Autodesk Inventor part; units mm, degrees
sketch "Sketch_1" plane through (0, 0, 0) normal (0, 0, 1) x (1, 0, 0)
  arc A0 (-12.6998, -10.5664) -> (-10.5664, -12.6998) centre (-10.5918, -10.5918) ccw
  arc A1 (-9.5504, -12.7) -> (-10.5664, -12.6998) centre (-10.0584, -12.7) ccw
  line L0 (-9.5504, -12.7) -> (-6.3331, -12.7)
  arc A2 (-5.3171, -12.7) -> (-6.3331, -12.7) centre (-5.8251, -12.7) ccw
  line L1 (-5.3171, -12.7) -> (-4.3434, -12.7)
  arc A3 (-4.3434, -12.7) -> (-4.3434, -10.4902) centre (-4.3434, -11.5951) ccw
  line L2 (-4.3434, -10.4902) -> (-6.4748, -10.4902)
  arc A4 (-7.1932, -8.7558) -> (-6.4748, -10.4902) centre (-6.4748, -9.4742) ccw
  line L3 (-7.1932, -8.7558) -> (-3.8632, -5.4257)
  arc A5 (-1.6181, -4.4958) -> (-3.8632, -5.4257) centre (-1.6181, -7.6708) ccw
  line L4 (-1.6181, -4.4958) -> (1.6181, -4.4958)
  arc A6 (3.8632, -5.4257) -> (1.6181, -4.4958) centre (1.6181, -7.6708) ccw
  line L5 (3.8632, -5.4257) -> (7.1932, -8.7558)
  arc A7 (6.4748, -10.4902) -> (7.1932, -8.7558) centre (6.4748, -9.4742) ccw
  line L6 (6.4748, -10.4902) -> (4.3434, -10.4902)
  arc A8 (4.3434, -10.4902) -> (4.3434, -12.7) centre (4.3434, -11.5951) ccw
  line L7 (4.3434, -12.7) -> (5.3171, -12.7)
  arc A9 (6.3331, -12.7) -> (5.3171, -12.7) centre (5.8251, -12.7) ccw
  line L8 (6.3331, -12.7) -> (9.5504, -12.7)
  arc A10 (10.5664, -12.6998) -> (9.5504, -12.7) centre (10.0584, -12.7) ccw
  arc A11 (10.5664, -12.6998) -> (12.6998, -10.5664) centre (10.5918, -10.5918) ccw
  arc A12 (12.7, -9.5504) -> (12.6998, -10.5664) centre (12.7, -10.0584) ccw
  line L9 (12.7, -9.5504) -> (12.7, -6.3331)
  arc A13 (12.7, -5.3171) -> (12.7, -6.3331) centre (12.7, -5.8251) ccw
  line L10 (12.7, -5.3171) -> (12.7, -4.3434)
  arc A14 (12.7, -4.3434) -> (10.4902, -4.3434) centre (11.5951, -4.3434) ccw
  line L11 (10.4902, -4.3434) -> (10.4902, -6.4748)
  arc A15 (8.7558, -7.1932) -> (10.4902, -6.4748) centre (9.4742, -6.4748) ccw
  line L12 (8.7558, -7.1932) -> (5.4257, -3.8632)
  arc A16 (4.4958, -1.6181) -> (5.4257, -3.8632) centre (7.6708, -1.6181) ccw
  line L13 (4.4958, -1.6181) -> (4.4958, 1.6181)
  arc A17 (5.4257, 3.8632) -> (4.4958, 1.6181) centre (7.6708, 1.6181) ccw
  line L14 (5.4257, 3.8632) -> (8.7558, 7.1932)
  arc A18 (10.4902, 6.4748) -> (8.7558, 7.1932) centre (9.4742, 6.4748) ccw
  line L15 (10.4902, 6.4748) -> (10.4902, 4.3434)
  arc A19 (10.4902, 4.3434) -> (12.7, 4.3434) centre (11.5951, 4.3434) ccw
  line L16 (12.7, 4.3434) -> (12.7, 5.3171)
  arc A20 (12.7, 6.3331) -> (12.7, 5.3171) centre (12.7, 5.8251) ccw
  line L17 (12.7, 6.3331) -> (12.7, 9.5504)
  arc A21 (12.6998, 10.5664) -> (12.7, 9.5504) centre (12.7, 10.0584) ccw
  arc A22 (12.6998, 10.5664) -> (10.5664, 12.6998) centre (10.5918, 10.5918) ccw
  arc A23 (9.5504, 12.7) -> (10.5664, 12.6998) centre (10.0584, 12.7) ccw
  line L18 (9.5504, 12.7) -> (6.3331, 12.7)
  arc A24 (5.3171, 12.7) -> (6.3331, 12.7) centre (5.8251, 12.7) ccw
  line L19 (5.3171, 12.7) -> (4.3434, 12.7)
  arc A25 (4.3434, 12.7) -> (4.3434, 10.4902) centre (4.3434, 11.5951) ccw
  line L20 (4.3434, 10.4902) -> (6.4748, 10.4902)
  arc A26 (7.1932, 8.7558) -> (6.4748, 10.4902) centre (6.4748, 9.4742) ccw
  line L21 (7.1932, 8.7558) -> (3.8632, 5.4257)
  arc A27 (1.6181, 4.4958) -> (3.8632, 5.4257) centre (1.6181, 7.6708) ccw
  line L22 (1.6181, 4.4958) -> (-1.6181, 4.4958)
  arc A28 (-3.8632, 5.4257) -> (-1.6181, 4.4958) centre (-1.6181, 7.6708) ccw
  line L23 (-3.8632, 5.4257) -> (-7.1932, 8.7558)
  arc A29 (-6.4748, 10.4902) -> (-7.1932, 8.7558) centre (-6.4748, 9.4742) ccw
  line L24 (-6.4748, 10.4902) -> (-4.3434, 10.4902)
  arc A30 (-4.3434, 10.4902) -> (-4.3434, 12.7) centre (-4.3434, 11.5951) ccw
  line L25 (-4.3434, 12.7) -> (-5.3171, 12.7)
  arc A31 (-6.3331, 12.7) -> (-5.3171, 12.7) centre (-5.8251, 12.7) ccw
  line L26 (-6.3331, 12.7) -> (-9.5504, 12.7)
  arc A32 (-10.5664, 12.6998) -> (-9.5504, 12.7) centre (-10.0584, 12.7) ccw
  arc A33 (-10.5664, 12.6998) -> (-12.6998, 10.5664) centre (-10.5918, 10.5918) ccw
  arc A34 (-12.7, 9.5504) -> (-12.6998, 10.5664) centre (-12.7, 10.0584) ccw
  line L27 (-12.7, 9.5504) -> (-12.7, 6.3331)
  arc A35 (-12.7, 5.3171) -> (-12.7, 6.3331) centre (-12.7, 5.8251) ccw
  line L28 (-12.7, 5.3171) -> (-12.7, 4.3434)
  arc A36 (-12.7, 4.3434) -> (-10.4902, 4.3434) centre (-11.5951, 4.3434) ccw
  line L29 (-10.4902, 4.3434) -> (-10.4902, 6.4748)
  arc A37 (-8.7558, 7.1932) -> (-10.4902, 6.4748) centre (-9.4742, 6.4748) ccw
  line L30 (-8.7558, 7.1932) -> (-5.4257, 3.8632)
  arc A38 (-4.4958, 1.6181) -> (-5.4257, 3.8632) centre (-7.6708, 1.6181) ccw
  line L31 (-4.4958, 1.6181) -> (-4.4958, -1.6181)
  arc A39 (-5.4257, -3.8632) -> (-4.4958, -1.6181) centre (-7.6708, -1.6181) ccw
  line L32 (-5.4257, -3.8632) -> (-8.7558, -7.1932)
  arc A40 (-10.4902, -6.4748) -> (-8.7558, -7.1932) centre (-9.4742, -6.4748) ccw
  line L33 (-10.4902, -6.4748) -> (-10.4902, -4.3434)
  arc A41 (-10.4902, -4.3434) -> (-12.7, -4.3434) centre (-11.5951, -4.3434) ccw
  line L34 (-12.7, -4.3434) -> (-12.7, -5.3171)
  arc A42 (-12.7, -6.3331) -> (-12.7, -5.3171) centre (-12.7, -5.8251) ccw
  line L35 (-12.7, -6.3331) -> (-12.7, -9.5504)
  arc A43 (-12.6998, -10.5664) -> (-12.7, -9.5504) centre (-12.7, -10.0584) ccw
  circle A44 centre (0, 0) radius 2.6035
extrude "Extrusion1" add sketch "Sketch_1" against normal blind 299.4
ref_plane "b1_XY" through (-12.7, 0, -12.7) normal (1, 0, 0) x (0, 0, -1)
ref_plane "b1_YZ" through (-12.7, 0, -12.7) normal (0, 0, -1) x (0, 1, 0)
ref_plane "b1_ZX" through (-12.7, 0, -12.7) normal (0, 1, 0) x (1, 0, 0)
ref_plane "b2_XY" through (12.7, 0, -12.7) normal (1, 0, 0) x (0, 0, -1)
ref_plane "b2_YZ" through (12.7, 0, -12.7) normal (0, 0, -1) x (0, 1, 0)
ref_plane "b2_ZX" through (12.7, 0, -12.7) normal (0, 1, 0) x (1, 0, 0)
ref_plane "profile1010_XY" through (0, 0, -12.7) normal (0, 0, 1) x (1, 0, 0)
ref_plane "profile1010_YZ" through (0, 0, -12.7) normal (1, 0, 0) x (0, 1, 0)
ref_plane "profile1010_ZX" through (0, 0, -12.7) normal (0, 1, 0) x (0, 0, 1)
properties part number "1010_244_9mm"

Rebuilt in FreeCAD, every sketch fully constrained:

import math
import FreeCAD as App
import Part
import Sketcher
Q = App.Units.Quantity

doc = App.newDocument("Part")
body = doc.addObject("PartDesign::Body", "Body")

# Sketch on XY plane
sketch1 = body.newObject("Sketcher::SketchObject", "Sketch")
sketch1.AttachmentSupport = (doc.getObject("XY_Plane"), [""])
sketch1.MapMode = "FlatFace"
sketch1.addGeometry(Part.ArcOfCircle(Part.Circle(App.Vector(-12.7, -10.1, 0), App.Vector(0, 0, 1), 0.5), math.radians(-90), math.radians(90)), False)
sketch1.addGeometry(Part.ArcOfCircle(Part.Circle(App.Vector(-10.6, -10.6, 0), App.Vector(0, 0, 1), 2.1), math.radians(179), math.radians(271)), False)
sketch1.addGeometry(Part.ArcOfCircle(Part.Circle(App.Vector(-10.1, -12.7, 0), App.Vector(0, 0, 1), 0.5), math.radians(0), math.radians(180)), False)
sketch1.addGeometry(Part.LineSegment(App.Vector(-9.6, -12.7, 0), App.Vector(-6.3, -12.7, 0)), False)
sketch1.addGeometry(Part.ArcOfCircle(Part.Circle(App.Vector(-5.8, -12.7, 0), App.Vector(0, 0, 1), 0.5), math.radians(0), math.radians(180)), False)
sketch1.addGeometry(Part.LineSegment(App.Vector(-5.3, -12.7, 0), App.Vector(-4.3, -12.7, 0)), False)
sketch1.addGeometry(Part.ArcOfCircle(Part.Circle(App.Vector(-4.3, -11.6, 0), App.Vector(0, 0, 1), 1.1), math.radians(-90), math.radians(90)), False)
sketch1.addGeometry(Part.LineSegment(App.Vector(-4.3, -10.5, 0), App.Vector(-6.5, -10.5, 0)), False)
sketch1.addGeometry(Part.ArcOfCircle(Part.Circle(App.Vector(-6.5, -9.5, 0), App.Vector(0, 0, 1), 1), math.radians(135), math.radians(270)), False)
sketch1.addGeometry(Part.LineSegment(App.Vector(-7.2, -8.8, 0), App.Vector(-3.9, -5.4, 0)), False)
sketch1.addGeometry(Part.ArcOfCircle(Part.Circle(App.Vector(-1.6, -7.7, 0), App.Vector(0, 0, 1), 3.2), math.radians(90), math.radians(135)), False)
sketch1.addGeometry(Part.LineSegment(App.Vector(-1.6, -4.5, 0), App.Vector(1.6, -4.5, 0)), False)
sketch1.addGeometry(Part.ArcOfCircle(Part.Circle(App.Vector(1.6, -7.7, 0), App.Vector(0, 0, 1), 3.2), math.radians(45), math.radians(90)), False)
sketch1.addGeometry(Part.LineSegment(App.Vector(3.9, -5.4, 0), App.Vector(7.2, -8.8, 0)), False)
sketch1.addGeometry(Part.ArcOfCircle(Part.Circle(App.Vector(6.5, -9.5, 0), App.Vector(0, 0, 1), 1), math.radians(-90), math.radians(45)), False)
sketch1.addGeometry(Part.LineSegment(App.Vector(6.5, -10.5, 0), App.Vector(4.3, -10.5, 0)), False)
sketch1.addGeometry(Part.ArcOfCircle(Part.Circle(App.Vector(4.3, -11.6, 0), App.Vector(0, 0, 1), 1.1), math.radians(90), math.radians(270)), False)
sketch1.addGeometry(Part.LineSegment(App.Vector(4.3, -12.7, 0), App.Vector(5.3, -12.7, 0)), False)
sketch1.addGeometry(Part.ArcOfCircle(Part.Circle(App.Vector(5.8, -12.7, 0), App.Vector(0, 0, 1), 0.5), math.radians(0), math.radians(180)), False)
sketch1.addGeometry(Part.LineSegment(App.Vector(6.3, -12.7, 0), App.Vector(9.6, -12.7, 0)), False)
sketch1.addGeometry(Part.ArcOfCircle(Part.Circle(App.Vector(10.1, -12.7, 0), App.Vector(0, 0, 1), 0.5), math.radians(0), math.radians(180)), False)
sketch1.addGeometry(Part.ArcOfCircle(Part.Circle(App.Vector(10.6, -10.6, 0), App.Vector(0, 0, 1), 2.1), math.radians(-91), math.radians(1)), False)
sketch1.addGeometry(Part.ArcOfCircle(Part.Circle(App.Vector(12.7, -10.1, 0), App.Vector(0, 0, 1), 0.5), math.radians(90), math.radians(270)), False)
sketch1.addGeometry(Part.LineSegment(App.Vector(12.7, -9.6, 0), App.Vector(12.7, -6.3, 0)), False)
sketch1.addGeometry(Part.ArcOfCircle(Part.Circle(App.Vector(12.7, -5.8, 0), App.Vector(0, 0, 1), 0.5), math.radians(90), math.radians(270)), False)
sketch1.addGeometry(Part.LineSegment(App.Vector(12.7, -5.3, 0), App.Vector(12.7, -4.3, 0)), False)
sketch1.addGeometry(Part.ArcOfCircle(Part.Circle(App.Vector(11.6, -4.3, 0), App.Vector(0, 0, 1), 1.1), math.radians(0), math.radians(180)), False)
sketch1.addGeometry(Part.LineSegment(App.Vector(10.5, -4.3, 0), App.Vector(10.5, -6.5, 0)), False)
sketch1.addGeometry(Part.ArcOfCircle(Part.Circle(App.Vector(9.5, -6.5, 0), App.Vector(0, 0, 1), 1), math.radians(-135), math.radians(0)), False)
sketch1.addGeometry(Part.LineSegment(App.Vector(8.8, -7.2, 0), App.Vector(5.4, -3.9, 0)), False)
sketch1.addGeometry(Part.ArcOfCircle(Part.Circle(App.Vector(7.7, -1.6, 0), App.Vector(0, 0, 1), 3.2), math.radians(180), math.radians(225)), False)
sketch1.addGeometry(Part.LineSegment(App.Vector(4.5, -1.6, 0), App.Vector(4.5, 1.6, 0)), False)
sketch1.addGeometry(Part.ArcOfCircle(Part.Circle(App.Vector(7.7, 1.6, 0), App.Vector(0, 0, 1), 3.2), math.radians(135), math.radians(180)), False)
sketch1.addGeometry(Part.LineSegment(App.Vector(5.4, 3.9, 0), App.Vector(8.8, 7.2, 0)), False)
sketch1.addGeometry(Part.ArcOfCircle(Part.Circle(App.Vector(9.5, 6.5, 0), App.Vector(0, 0, 1), 1), math.radians(0), math.radians(135)), False)
sketch1.addGeometry(Part.LineSegment(App.Vector(10.5, 6.5, 0), App.Vector(10.5, 4.3, 0)), False)
sketch1.addGeometry(Part.ArcOfCircle(Part.Circle(App.Vector(11.6, 4.3, 0), App.Vector(0, 0, 1), 1.1), math.radians(180), math.radians(360)), False)
sketch1.addGeometry(Part.LineSegment(App.Vector(12.7, 4.3, 0), App.Vector(12.7, 5.3, 0)), False)
sketch1.addGeometry(Part.ArcOfCircle(Part.Circle(App.Vector(12.7, 5.8, 0), App.Vector(0, 0, 1), 0.5), math.radians(90), math.radians(270)), False)
sketch1.addGeometry(Part.LineSegment(App.Vector(12.7, 6.3, 0), App.Vector(12.7, 9.6, 0)), False)
sketch1.addGeometry(Part.ArcOfCircle(Part.Circle(App.Vector(12.7, 10.1, 0), App.Vector(0, 0, 1), 0.5), math.radians(90), math.radians(270)), False)
sketch1.addGeometry(Part.ArcOfCircle(Part.Circle(App.Vector(10.6, 10.6, 0), App.Vector(0, 0, 1), 2.1), math.radians(-1), math.radians(91)), False)
sketch1.addGeometry(Part.ArcOfCircle(Part.Circle(App.Vector(10.1, 12.7, 0), App.Vector(0, 0, 1), 0.5), math.radians(180), math.radians(360)), False)
sketch1.addGeometry(Part.LineSegment(App.Vector(9.6, 12.7, 0), App.Vector(6.3, 12.7, 0)), False)
sketch1.addGeometry(Part.ArcOfCircle(Part.Circle(App.Vector(5.8, 12.7, 0), App.Vector(0, 0, 1), 0.5), math.radians(180), math.radians(360)), False)
sketch1.addGeometry(Part.LineSegment(App.Vector(5.3, 12.7, 0), App.Vector(4.3, 12.7, 0)), False)
sketch1.addGeometry(Part.ArcOfCircle(Part.Circle(App.Vector(4.3, 11.6, 0), App.Vector(0, 0, 1), 1.1), math.radians(90), math.radians(270)), False)
sketch1.addGeometry(Part.LineSegment(App.Vector(4.3, 10.5, 0), App.Vector(6.5, 10.5, 0)), False)
sketch1.addGeometry(Part.ArcOfCircle(Part.Circle(App.Vector(6.5, 9.5, 0), App.Vector(0, 0, 1), 1), math.radians(-45), math.radians(90)), False)
sketch1.addGeometry(Part.LineSegment(App.Vector(7.2, 8.8, 0), App.Vector(3.9, 5.4, 0)), False)
sketch1.addGeometry(Part.ArcOfCircle(Part.Circle(App.Vector(1.6, 7.7, 0), App.Vector(0, 0, 1), 3.2), math.radians(-90), math.radians(-45)), False)
sketch1.addGeometry(Part.LineSegment(App.Vector(1.6, 4.5, 0), App.Vector(-1.6, 4.5, 0)), False)
sketch1.addGeometry(Part.ArcOfCircle(Part.Circle(App.Vector(-1.6, 7.7, 0), App.Vector(0, 0, 1), 3.2), math.radians(-135), math.radians(-90)), False)
sketch1.addGeometry(Part.LineSegment(App.Vector(-3.9, 5.4, 0), App.Vector(-7.2, 8.8, 0)), False)
sketch1.addGeometry(Part.ArcOfCircle(Part.Circle(App.Vector(-6.5, 9.5, 0), App.Vector(0, 0, 1), 1), math.radians(90), math.radians(225)), False)
sketch1.addGeometry(Part.LineSegment(App.Vector(-6.5, 10.5, 0), App.Vector(-4.3, 10.5, 0)), False)
sketch1.addGeometry(Part.ArcOfCircle(Part.Circle(App.Vector(-4.3, 11.6, 0), App.Vector(0, 0, 1), 1.1), math.radians(-90), math.radians(90)), False)
sketch1.addGeometry(Part.LineSegment(App.Vector(-4.3, 12.7, 0), App.Vector(-5.3, 12.7, 0)), False)
sketch1.addGeometry(Part.ArcOfCircle(Part.Circle(App.Vector(-5.8, 12.7, 0), App.Vector(0, 0, 1), 0.5), math.radians(180), math.radians(360)), False)
sketch1.addGeometry(Part.LineSegment(App.Vector(-6.3, 12.7, 0), App.Vector(-9.6, 12.7, 0)), False)
sketch1.addGeometry(Part.ArcOfCircle(Part.Circle(App.Vector(-10.1, 12.7, 0), App.Vector(0, 0, 1), 0.5), math.radians(-180), math.radians(0)), False)
sketch1.addGeometry(Part.ArcOfCircle(Part.Circle(App.Vector(-10.6, 10.6, 0), App.Vector(0, 0, 1), 2.1), math.radians(89), math.radians(181)), False)
sketch1.addGeometry(Part.ArcOfCircle(Part.Circle(App.Vector(-12.7, 10.1, 0), App.Vector(0, 0, 1), 0.5), math.radians(-90), math.radians(90)), False)
sketch1.addGeometry(Part.LineSegment(App.Vector(-12.7, 9.6, 0), App.Vector(-12.7, 6.3, 0)), False)
sketch1.addGeometry(Part.ArcOfCircle(Part.Circle(App.Vector(-12.7, 5.8, 0), App.Vector(0, 0, 1), 0.5), math.radians(-90), math.radians(90)), False)
sketch1.addGeometry(Part.LineSegment(App.Vector(-12.7, 5.3, 0), App.Vector(-12.7, 4.3, 0)), False)
sketch1.addGeometry(Part.ArcOfCircle(Part.Circle(App.Vector(-11.6, 4.3, 0), App.Vector(0, 0, 1), 1.1), math.radians(180), math.radians(360)), False)
sketch1.addGeometry(Part.LineSegment(App.Vector(-10.5, 4.3, 0), App.Vector(-10.5, 6.5, 0)), False)
sketch1.addGeometry(Part.ArcOfCircle(Part.Circle(App.Vector(-9.5, 6.5, 0), App.Vector(0, 0, 1), 1), math.radians(45), math.radians(180)), False)
sketch1.addGeometry(Part.LineSegment(App.Vector(-8.8, 7.2, 0), App.Vector(-5.4, 3.9, 0)), False)
sketch1.addGeometry(Part.ArcOfCircle(Part.Circle(App.Vector(-7.7, 1.6, 0), App.Vector(0, 0, 1), 3.2), math.radians(0), math.radians(45)), False)
sketch1.addGeometry(Part.LineSegment(App.Vector(-4.5, 1.6, 0), App.Vector(-4.5, -1.6, 0)), False)
sketch1.addGeometry(Part.ArcOfCircle(Part.Circle(App.Vector(-7.7, -1.6, 0), App.Vector(0, 0, 1), 3.2), math.radians(-45), math.radians(0)), False)
sketch1.addGeometry(Part.LineSegment(App.Vector(-5.4, -3.9, 0), App.Vector(-8.8, -7.2, 0)), False)
sketch1.addGeometry(Part.ArcOfCircle(Part.Circle(App.Vector(-9.5, -6.5, 0), App.Vector(0, 0, 1), 1), math.radians(180), math.radians(315)), False)
sketch1.addGeometry(Part.LineSegment(App.Vector(-10.5, -6.5, 0), App.Vector(-10.5, -4.3, 0)), False)
sketch1.addGeometry(Part.ArcOfCircle(Part.Circle(App.Vector(-11.6, -4.3, 0), App.Vector(0, 0, 1), 1.1), math.radians(0), math.radians(180)), False)
sketch1.addGeometry(Part.LineSegment(App.Vector(-12.7, -4.3, 0), App.Vector(-12.7, -5.3, 0)), False)
sketch1.addGeometry(Part.ArcOfCircle(Part.Circle(App.Vector(-12.7, -5.8, 0), App.Vector(0, 0, 1), 0.5), math.radians(-90), math.radians(90)), False)
sketch1.addGeometry(Part.LineSegment(App.Vector(-12.7, -6.3, 0), App.Vector(-12.7, -9.6, 0)), False)
sketch1.addGeometry(Part.Circle(App.Vector(0, 0, 0), App.Vector(0, 0, 1), 2.6), False)
sketch1.addConstraint(Sketcher.Constraint("Coincident", 0, 1, 1, 1))
sketch1.addConstraint(Sketcher.Constraint("Coincident", 1, 2, 2, 2))
sketch1.addConstraint(Sketcher.Constraint("Coincident", 2, 1, 3, 1))
sketch1.addConstraint(Sketcher.Constraint("Coincident", 3, 2, 4, 2))
sketch1.addConstraint(Sketcher.Constraint("Coincident", 4, 1, 5, 1))
sketch1.addConstraint(Sketcher.Constraint("Tangent", 5, 2, 6, 1))
sketch1.addConstraint(Sketcher.Constraint("Tangent", 6, 2, 7, 1))
sketch1.addConstraint(Sketcher.Constraint("Tangent", 7, 2, 8, 2))
sketch1.addConstraint(Sketcher.Constraint("Tangent", 8, 1, 9, 1))
sketch1.addConstraint(Sketcher.Constraint("Tangent", 9, 2, 10, 2))
sketch1.addConstraint(Sketcher.Constraint("Tangent", 10, 1, 11, 1))
sketch1.addConstraint(Sketcher.Constraint("Tangent", 11, 2, 12, 2))
sketch1.addConstraint(Sketcher.Constraint("Tangent", 12, 1, 13, 1))
sketch1.addConstraint(Sketcher.Constraint("Tangent", 13, 2, 14, 2))
sketch1.addConstraint(Sketcher.Constraint("Tangent", 14, 1, 15, 1))
sketch1.addConstraint(Sketcher.Constraint("Tangent", 15, 2, 16, 1))
sketch1.addConstraint(Sketcher.Constraint("Tangent", 16, 2, 17, 1))
sketch1.addConstraint(Sketcher.Constraint("Coincident", 17, 2, 18, 2))
sketch1.addConstraint(Sketcher.Constraint("Coincident", 18, 1, 19, 1))
sketch1.addConstraint(Sketcher.Constraint("Coincident", 19, 2, 20, 2))
sketch1.addConstraint(Sketcher.Constraint("Coincident", 20, 1, 21, 1))
sketch1.addConstraint(Sketcher.Constraint("Coincident", 21, 2, 22, 2))
sketch1.addConstraint(Sketcher.Constraint("Coincident", 22, 1, 23, 1))
sketch1.addConstraint(Sketcher.Constraint("Coincident", 23, 2, 24, 2))
sketch1.addConstraint(Sketcher.Constraint("Coincident", 24, 1, 25, 1))
sketch1.addConstraint(Sketcher.Constraint("Tangent", 25, 2, 26, 1))
sketch1.addConstraint(Sketcher.Constraint("Tangent", 26, 2, 27, 1))
sketch1.addConstraint(Sketcher.Constraint("Tangent", 27, 2, 28, 2))
sketch1.addConstraint(Sketcher.Constraint("Tangent", 28, 1, 29, 1))
sketch1.addConstraint(Sketcher.Constraint("Tangent", 29, 2, 30, 2))
sketch1.addConstraint(Sketcher.Constraint("Tangent", 30, 1, 31, 1))
sketch1.addConstraint(Sketcher.Constraint("Tangent", 31, 2, 32, 2))
sketch1.addConstraint(Sketcher.Constraint("Tangent", 32, 1, 33, 1))
sketch1.addConstraint(Sketcher.Constraint("Tangent", 33, 2, 34, 2))
sketch1.addConstraint(Sketcher.Constraint("Tangent", 34, 1, 35, 1))
sketch1.addConstraint(Sketcher.Constraint("Tangent", 35, 2, 36, 1))
sketch1.addConstraint(Sketcher.Constraint("Tangent", 36, 2, 37, 1))
sketch1.addConstraint(Sketcher.Constraint("Coincident", 37, 2, 38, 2))
sketch1.addConstraint(Sketcher.Constraint("Coincident", 38, 1, 39, 1))
sketch1.addConstraint(Sketcher.Constraint("Coincident", 39, 2, 40, 2))
sketch1.addConstraint(Sketcher.Constraint("Coincident", 40, 1, 41, 1))
sketch1.addConstraint(Sketcher.Constraint("Coincident", 41, 2, 42, 2))
sketch1.addConstraint(Sketcher.Constraint("Coincident", 42, 1, 43, 1))
sketch1.addConstraint(Sketcher.Constraint("Coincident", 43, 2, 44, 2))
sketch1.addConstraint(Sketcher.Constraint("Coincident", 44, 1, 45, 1))
sketch1.addConstraint(Sketcher.Constraint("Tangent", 45, 2, 46, 1))
sketch1.addConstraint(Sketcher.Constraint("Tangent", 46, 2, 47, 1))
sketch1.addConstraint(Sketcher.Constraint("Tangent", 47, 2, 48, 2))
sketch1.addConstraint(Sketcher.Constraint("Tangent", 48, 1, 49, 1))
sketch1.addConstraint(Sketcher.Constraint("Tangent", 49, 2, 50, 2))
sketch1.addConstraint(Sketcher.Constraint("Tangent", 50, 1, 51, 1))
sketch1.addConstraint(Sketcher.Constraint("Tangent", 51, 2, 52, 2))
sketch1.addConstraint(Sketcher.Constraint("Tangent", 52, 1, 53, 1))
sketch1.addConstraint(Sketcher.Constraint("Tangent", 53, 2, 54, 2))
sketch1.addConstraint(Sketcher.Constraint("Tangent", 54, 1, 55, 1))
sketch1.addConstraint(Sketcher.Constraint("Tangent", 55, 2, 56, 1))
sketch1.addConstraint(Sketcher.Constraint("Tangent", 56, 2, 57, 1))
sketch1.addConstraint(Sketcher.Constraint("Coincident", 57, 2, 58, 2))
sketch1.addConstraint(Sketcher.Constraint("Coincident", 58, 1, 59, 1))
sketch1.addConstraint(Sketcher.Constraint("Coincident", 59, 2, 60, 2))
sketch1.addConstraint(Sketcher.Constraint("Coincident", 60, 1, 61, 1))
sketch1.addConstraint(Sketcher.Constraint("Coincident", 61, 2, 62, 2))
sketch1.addConstraint(Sketcher.Constraint("Coincident", 62, 1, 63, 1))
sketch1.addConstraint(Sketcher.Constraint("Coincident", 63, 2, 64, 2))
sketch1.addConstraint(Sketcher.Constraint("Coincident", 64, 1, 65, 1))
sketch1.addConstraint(Sketcher.Constraint("Tangent", 65, 2, 66, 1))
sketch1.addConstraint(Sketcher.Constraint("Tangent", 66, 2, 67, 1))
sketch1.addConstraint(Sketcher.Constraint("Tangent", 67, 2, 68, 2))
sketch1.addConstraint(Sketcher.Constraint("Tangent", 68, 1, 69, 1))
sketch1.addConstraint(Sketcher.Constraint("Tangent", 69, 2, 70, 2))
sketch1.addConstraint(Sketcher.Constraint("Tangent", 70, 1, 71, 1))
sketch1.addConstraint(Sketcher.Constraint("Tangent", 71, 2, 72, 2))
sketch1.addConstraint(Sketcher.Constraint("Tangent", 72, 1, 73, 1))
sketch1.addConstraint(Sketcher.Constraint("Tangent", 73, 2, 74, 2))
sketch1.addConstraint(Sketcher.Constraint("Tangent", 74, 1, 75, 1))
sketch1.addConstraint(Sketcher.Constraint("Tangent", 75, 2, 76, 1))
sketch1.addConstraint(Sketcher.Constraint("Tangent", 76, 2, 77, 1))
sketch1.addConstraint(Sketcher.Constraint("Coincident", 77, 2, 78, 2))
sketch1.addConstraint(Sketcher.Constraint("Coincident", 78, 1, 79, 1))
sketch1.addConstraint(Sketcher.Constraint("Coincident", 79, 2, 0, 2))
sketch1.addConstraint(Sketcher.Constraint("Horizontal", 3))
sketch1.addConstraint(Sketcher.Constraint("Horizontal", 5))
sketch1.addConstraint(Sketcher.Constraint("Horizontal", 7))
sketch1.addConstraint(Sketcher.Constraint("Horizontal", 11))
sketch1.addConstraint(Sketcher.Constraint("Horizontal", 15))
sketch1.addConstraint(Sketcher.Constraint("Horizontal", 17))
sketch1.addConstraint(Sketcher.Constraint("Horizontal", 19))
sketch1.addConstraint(Sketcher.Constraint("Vertical", 23))
sketch1.addConstraint(Sketcher.Constraint("Vertical", 25))
sketch1.addConstraint(Sketcher.Constraint("Vertical", 27))
sketch1.addConstraint(Sketcher.Constraint("Vertical", 31))
sketch1.addConstraint(Sketcher.Constraint("Vertical", 35))
sketch1.addConstraint(Sketcher.Constraint("Vertical", 37))
sketch1.addConstraint(Sketcher.Constraint("Vertical", 39))
sketch1.addConstraint(Sketcher.Constraint("Horizontal", 43))
sketch1.addConstraint(Sketcher.Constraint("Horizontal", 45))
sketch1.addConstraint(Sketcher.Constraint("Horizontal", 47))
sketch1.addConstraint(Sketcher.Constraint("Horizontal", 51))
sketch1.addConstraint(Sketcher.Constraint("Horizontal", 55))
sketch1.addConstraint(Sketcher.Constraint("Horizontal", 57))
sketch1.addConstraint(Sketcher.Constraint("Horizontal", 59))
sketch1.addConstraint(Sketcher.Constraint("Vertical", 63))
sketch1.addConstraint(Sketcher.Constraint("Vertical", 65))
sketch1.addConstraint(Sketcher.Constraint("Vertical", 67))
sketch1.addConstraint(Sketcher.Constraint("Vertical", 71))
sketch1.addConstraint(Sketcher.Constraint("Vertical", 75))
sketch1.addConstraint(Sketcher.Constraint("Vertical", 77))
sketch1.addConstraint(Sketcher.Constraint("Vertical", 79))
sketch1.addConstraint(Sketcher.Constraint("Coincident", 80, 3, -1, 1))
sketch1.addConstraint(Sketcher.Constraint("Equal", 0, 2))
sketch1.addConstraint(Sketcher.Constraint("Equal", 2, 4))
sketch1.addConstraint(Sketcher.Constraint("Equal", 10, 12))
sketch1.addConstraint(Sketcher.Constraint("Equal", 8, 14))
sketch1.addConstraint(Sketcher.Constraint("Equal", 6, 16))
sketch1.addConstraint(Sketcher.Constraint("Equal", 4, 18))
sketch1.addConstraint(Sketcher.Constraint("Equal", 18, 20))
sketch1.addConstraint(Sketcher.Constraint("Equal", 1, 21))
sketch1.addConstraint(Sketcher.Constraint("Equal", 20, 22))
sketch1.addConstraint(Sketcher.Constraint("Equal", 22, 24))
sketch1.addConstraint(Sketcher.Constraint("Equal", 16, 26))
sketch1.addConstraint(Sketcher.Constraint("Equal", 14, 28))
sketch1.addConstraint(Sketcher.Constraint("Equal", 12, 30))
sketch1.addConstraint(Sketcher.Constraint("Equal", 30, 32))
sketch1.addConstraint(Sketcher.Constraint("Equal", 28, 34))
sketch1.addConstraint(Sketcher.Constraint("Equal", 26, 36))
sketch1.addConstraint(Sketcher.Constraint("Equal", 24, 38))
sketch1.addConstraint(Sketcher.Constraint("Equal", 38, 40))
sketch1.addConstraint(Sketcher.Constraint("Equal", 21, 41))
sketch1.addConstraint(Sketcher.Constraint("Equal", 40, 42))
sketch1.addConstraint(Sketcher.Constraint("Equal", 42, 44))
sketch1.addConstraint(Sketcher.Constraint("Equal", 36, 46))
sketch1.addConstraint(Sketcher.Constraint("Equal", 34, 48))
sketch1.addConstraint(Sketcher.Constraint("Equal", 32, 50))
sketch1.addConstraint(Sketcher.Constraint("Equal", 50, 52))
sketch1.addConstraint(Sketcher.Constraint("Equal", 48, 54))
sketch1.addConstraint(Sketcher.Constraint("Equal", 46, 56))
sketch1.addConstraint(Sketcher.Constraint("Equal", 44, 58))
sketch1.addConstraint(Sketcher.Constraint("Equal", 58, 60))
sketch1.addConstraint(Sketcher.Constraint("Equal", 41, 61))
sketch1.addConstraint(Sketcher.Constraint("Equal", 60, 62))
sketch1.addConstraint(Sketcher.Constraint("Equal", 62, 64))
sketch1.addConstraint(Sketcher.Constraint("Equal", 56, 66))
sketch1.addConstraint(Sketcher.Constraint("Equal", 54, 68))
sketch1.addConstraint(Sketcher.Constraint("Equal", 52, 70))
sketch1.addConstraint(Sketcher.Constraint("Equal", 70, 72))
sketch1.addConstraint(Sketcher.Constraint("Equal", 68, 74))
sketch1.addConstraint(Sketcher.Constraint("Equal", 66, 76))
sketch1.addConstraint(Sketcher.Constraint("Equal", 64, 78))
sketch1.addConstraint(Sketcher.Constraint("Symmetric", 0, 3, 40, 3, -1, 1))
sketch1.addConstraint(Sketcher.Constraint("Symmetric", 1, 3, 41, 3, -1, 1))
sketch1.addConstraint(Sketcher.Constraint("Symmetric", 2, 3, 42, 3, -1, 1))
sketch1.addConstraint(Sketcher.Constraint("Symmetric", 4, 3, 44, 3, -1, 1))
sketch1.addConstraint(Sketcher.Constraint("Symmetric", 6, 3, 46, 3, -1, 1))
sketch1.addConstraint(Sketcher.Constraint("Symmetric", 10, 3, 50, 3, -1, 1))
sketch1.addConstraint(Sketcher.Constraint("Symmetric", 14, 3, 54, 3, -1, 1))
sketch1.addConstraint(Sketcher.Constraint("Symmetric", 18, 3, 58, 3, -1, 1))
sketch1.addConstraint(Sketcher.Constraint("Symmetric", 20, 3, 60, 3, -1, 1))
sketch1.addConstraint(Sketcher.Constraint("Symmetric", 21, 3, 61, 3, -1, 1))
sketch1.addConstraint(Sketcher.Constraint("Symmetric", 22, 3, 62, 3, -1, 1))
sketch1.addConstraint(Sketcher.Constraint("Symmetric", 24, 3, 64, 3, -1, 1))
sketch1.addConstraint(Sketcher.Constraint("Symmetric", 26, 3, 66, 3, -1, 1))
sketch1.addConstraint(Sketcher.Constraint("Symmetric", 30, 3, 70, 3, -1, 1))
sketch1.addConstraint(Sketcher.Constraint("Symmetric", 34, 3, 74, 3, -1, 1))
sketch1.addConstraint(Sketcher.Constraint("Symmetric", 38, 3, 78, 3, -1, 1))
sketch1.addConstraint(Sketcher.Constraint("Symmetric", 8, 3, 14, 3, -2))
sketch1.addConstraint(Sketcher.Constraint("Symmetric", 4, 3, 18, 3, -2))
sketch1.addConstraint(Sketcher.Constraint("Symmetric", 2, 3, 20, 3, -2))
sketch1.addConstraint(Sketcher.Constraint("Symmetric", 1, 3, 21, 3, -2))
sketch1.addConstraint(Sketcher.Constraint("Symmetric", 0, 3, 22, 3, -2))
sketch1.addConstraint(Sketcher.Constraint("Symmetric", 38, 3, 64, 3, -2))
sketch1.addConstraint(Sketcher.Constraint("Symmetric", 36, 3, 66, 3, -2))
sketch1.addConstraint(Sketcher.Constraint("Symmetric", 49, 2, 52, 1, -2))
sketch1.addConstraint(Sketcher.Constraint("Symmetric", 33, 2, 68, 1, -2))
sketch1.addConstraint(Sketcher.Constraint("Symmetric", 29, 2, 72, 1, -2))
sketch1.addConstraint(Sketcher.Constraint("Perpendicular", 9, 13))
sketch1.addConstraint(Sketcher.Constraint("Parallel", 13, 29))
sketch1.addConstraint(Sketcher.Constraint("Perpendicular", 29, 33))
sketch1.addConstraint(Sketcher.Constraint("Horizontal", 2, 3, 4, 3))
sketch1.addConstraint(Sketcher.Constraint("Horizontal", 26, 3, 76, 3))
sketch1.addConstraint(Sketcher.Constraint("Horizontal", 20, 3, 1, 2))
sketch1.addConstraint(Sketcher.Constraint("Horizontal", 1, 2, 2, 1))
sketch1.addConstraint(Sketcher.Constraint("Horizontal", 3, 2, 4, 1))
sketch1.addConstraint(Sketcher.Constraint("Horizontal", 17, 2, 18, 1))
sketch1.addConstraint(Sketcher.Constraint("Horizontal", 41, 2, 42, 1))
sketch1.addConstraint(Sketcher.Constraint("Horizontal", 57, 2, 58, 1))
sketch1.addConstraint(Sketcher.Constraint("Vertical", 22, 3, 24, 3))
sketch1.addConstraint(Sketcher.Constraint("Vertical", 16, 3, 46, 3))
sketch1.addConstraint(Sketcher.Constraint("Vertical", 6, 3, 56, 3))
sketch1.addConstraint(Sketcher.Constraint("Vertical", 78, 3, 0, 1))
sketch1.addConstraint(Sketcher.Constraint("Vertical", 21, 2, 22, 1))
sketch1.addConstraint(Sketcher.Constraint("Vertical", 23, 2, 24, 1))
sketch1.addConstraint(Sketcher.Constraint("Vertical", 37, 2, 38, 1))
sketch1.addConstraint(Sketcher.Constraint("Vertical", 61, 2, 62, 1))
sketch1.addConstraint(Sketcher.Constraint("Vertical", 77, 2, 78, 1))
sketch1.addConstraint(Sketcher.Constraint("Equal", 59, 23))
sketch1.addConstraint(Sketcher.Constraint("Equal", 57, 25))
sketch1.addConstraint(Sketcher.Constraint("Equal", 55, 27))
sketch1.addConstraint(Sketcher.Constraint("Equal", 51, 31))
sketch1.addConstraint(Sketcher.Constraint("Equal", 13, 29))
sketch1.addConstraint(Sketcher.Constraint("Radius", 0, Q("0.02 in")))
sketch1.addConstraint(Sketcher.Constraint("Radius", 8, Q("0.04 in")))
sketch1.addConstraint(Sketcher.Constraint("Diameter", 80, Q("0.205 in")))
sketch1.addConstraint(Sketcher.Constraint("Radius", 1, Q("0.083 in")))
sketch1.addConstraint(Sketcher.Constraint("Radius", 10, Q("0.125 in")))
sketch1.addConstraint(Sketcher.Constraint("DistanceX", 0, 3, -1, 1, Q("0.5 in")))
sketch1.addConstraint(Sketcher.Constraint("DistanceY", 2, 3, -1, 1, Q("0.5 in")))
sketch1.addConstraint(Sketcher.Constraint("Radius", 6, Q("0.0435 in")))
sketch1.addConstraint(Sketcher.Constraint("DistanceX", 11, 1, 11, 2, Q("0.1274 in")))
sketch1.addConstraint(Sketcher.Constraint("DistanceY", 0, 3, -1, 1, Q("0.396 in")))
sketch1.addConstraint(Sketcher.Constraint("DistanceX", 6, 3, -1, 1, Q("0.171 in")))
sketch1.addConstraint(Sketcher.Constraint("DistanceY", 10, 3, -1, 1, Q("0.302 in")))
sketch1.addConstraint(Sketcher.Constraint("DistanceX", 3, 1, 3, 2, Q("3.2173 mm")))
pad1 = body.newObject("PartDesign::Pad", "Pad")
pad1.Profile = sketch1
pad1.Length = Q("11.7874016 in")
pad1.Reversed = True

doc.recompute()
